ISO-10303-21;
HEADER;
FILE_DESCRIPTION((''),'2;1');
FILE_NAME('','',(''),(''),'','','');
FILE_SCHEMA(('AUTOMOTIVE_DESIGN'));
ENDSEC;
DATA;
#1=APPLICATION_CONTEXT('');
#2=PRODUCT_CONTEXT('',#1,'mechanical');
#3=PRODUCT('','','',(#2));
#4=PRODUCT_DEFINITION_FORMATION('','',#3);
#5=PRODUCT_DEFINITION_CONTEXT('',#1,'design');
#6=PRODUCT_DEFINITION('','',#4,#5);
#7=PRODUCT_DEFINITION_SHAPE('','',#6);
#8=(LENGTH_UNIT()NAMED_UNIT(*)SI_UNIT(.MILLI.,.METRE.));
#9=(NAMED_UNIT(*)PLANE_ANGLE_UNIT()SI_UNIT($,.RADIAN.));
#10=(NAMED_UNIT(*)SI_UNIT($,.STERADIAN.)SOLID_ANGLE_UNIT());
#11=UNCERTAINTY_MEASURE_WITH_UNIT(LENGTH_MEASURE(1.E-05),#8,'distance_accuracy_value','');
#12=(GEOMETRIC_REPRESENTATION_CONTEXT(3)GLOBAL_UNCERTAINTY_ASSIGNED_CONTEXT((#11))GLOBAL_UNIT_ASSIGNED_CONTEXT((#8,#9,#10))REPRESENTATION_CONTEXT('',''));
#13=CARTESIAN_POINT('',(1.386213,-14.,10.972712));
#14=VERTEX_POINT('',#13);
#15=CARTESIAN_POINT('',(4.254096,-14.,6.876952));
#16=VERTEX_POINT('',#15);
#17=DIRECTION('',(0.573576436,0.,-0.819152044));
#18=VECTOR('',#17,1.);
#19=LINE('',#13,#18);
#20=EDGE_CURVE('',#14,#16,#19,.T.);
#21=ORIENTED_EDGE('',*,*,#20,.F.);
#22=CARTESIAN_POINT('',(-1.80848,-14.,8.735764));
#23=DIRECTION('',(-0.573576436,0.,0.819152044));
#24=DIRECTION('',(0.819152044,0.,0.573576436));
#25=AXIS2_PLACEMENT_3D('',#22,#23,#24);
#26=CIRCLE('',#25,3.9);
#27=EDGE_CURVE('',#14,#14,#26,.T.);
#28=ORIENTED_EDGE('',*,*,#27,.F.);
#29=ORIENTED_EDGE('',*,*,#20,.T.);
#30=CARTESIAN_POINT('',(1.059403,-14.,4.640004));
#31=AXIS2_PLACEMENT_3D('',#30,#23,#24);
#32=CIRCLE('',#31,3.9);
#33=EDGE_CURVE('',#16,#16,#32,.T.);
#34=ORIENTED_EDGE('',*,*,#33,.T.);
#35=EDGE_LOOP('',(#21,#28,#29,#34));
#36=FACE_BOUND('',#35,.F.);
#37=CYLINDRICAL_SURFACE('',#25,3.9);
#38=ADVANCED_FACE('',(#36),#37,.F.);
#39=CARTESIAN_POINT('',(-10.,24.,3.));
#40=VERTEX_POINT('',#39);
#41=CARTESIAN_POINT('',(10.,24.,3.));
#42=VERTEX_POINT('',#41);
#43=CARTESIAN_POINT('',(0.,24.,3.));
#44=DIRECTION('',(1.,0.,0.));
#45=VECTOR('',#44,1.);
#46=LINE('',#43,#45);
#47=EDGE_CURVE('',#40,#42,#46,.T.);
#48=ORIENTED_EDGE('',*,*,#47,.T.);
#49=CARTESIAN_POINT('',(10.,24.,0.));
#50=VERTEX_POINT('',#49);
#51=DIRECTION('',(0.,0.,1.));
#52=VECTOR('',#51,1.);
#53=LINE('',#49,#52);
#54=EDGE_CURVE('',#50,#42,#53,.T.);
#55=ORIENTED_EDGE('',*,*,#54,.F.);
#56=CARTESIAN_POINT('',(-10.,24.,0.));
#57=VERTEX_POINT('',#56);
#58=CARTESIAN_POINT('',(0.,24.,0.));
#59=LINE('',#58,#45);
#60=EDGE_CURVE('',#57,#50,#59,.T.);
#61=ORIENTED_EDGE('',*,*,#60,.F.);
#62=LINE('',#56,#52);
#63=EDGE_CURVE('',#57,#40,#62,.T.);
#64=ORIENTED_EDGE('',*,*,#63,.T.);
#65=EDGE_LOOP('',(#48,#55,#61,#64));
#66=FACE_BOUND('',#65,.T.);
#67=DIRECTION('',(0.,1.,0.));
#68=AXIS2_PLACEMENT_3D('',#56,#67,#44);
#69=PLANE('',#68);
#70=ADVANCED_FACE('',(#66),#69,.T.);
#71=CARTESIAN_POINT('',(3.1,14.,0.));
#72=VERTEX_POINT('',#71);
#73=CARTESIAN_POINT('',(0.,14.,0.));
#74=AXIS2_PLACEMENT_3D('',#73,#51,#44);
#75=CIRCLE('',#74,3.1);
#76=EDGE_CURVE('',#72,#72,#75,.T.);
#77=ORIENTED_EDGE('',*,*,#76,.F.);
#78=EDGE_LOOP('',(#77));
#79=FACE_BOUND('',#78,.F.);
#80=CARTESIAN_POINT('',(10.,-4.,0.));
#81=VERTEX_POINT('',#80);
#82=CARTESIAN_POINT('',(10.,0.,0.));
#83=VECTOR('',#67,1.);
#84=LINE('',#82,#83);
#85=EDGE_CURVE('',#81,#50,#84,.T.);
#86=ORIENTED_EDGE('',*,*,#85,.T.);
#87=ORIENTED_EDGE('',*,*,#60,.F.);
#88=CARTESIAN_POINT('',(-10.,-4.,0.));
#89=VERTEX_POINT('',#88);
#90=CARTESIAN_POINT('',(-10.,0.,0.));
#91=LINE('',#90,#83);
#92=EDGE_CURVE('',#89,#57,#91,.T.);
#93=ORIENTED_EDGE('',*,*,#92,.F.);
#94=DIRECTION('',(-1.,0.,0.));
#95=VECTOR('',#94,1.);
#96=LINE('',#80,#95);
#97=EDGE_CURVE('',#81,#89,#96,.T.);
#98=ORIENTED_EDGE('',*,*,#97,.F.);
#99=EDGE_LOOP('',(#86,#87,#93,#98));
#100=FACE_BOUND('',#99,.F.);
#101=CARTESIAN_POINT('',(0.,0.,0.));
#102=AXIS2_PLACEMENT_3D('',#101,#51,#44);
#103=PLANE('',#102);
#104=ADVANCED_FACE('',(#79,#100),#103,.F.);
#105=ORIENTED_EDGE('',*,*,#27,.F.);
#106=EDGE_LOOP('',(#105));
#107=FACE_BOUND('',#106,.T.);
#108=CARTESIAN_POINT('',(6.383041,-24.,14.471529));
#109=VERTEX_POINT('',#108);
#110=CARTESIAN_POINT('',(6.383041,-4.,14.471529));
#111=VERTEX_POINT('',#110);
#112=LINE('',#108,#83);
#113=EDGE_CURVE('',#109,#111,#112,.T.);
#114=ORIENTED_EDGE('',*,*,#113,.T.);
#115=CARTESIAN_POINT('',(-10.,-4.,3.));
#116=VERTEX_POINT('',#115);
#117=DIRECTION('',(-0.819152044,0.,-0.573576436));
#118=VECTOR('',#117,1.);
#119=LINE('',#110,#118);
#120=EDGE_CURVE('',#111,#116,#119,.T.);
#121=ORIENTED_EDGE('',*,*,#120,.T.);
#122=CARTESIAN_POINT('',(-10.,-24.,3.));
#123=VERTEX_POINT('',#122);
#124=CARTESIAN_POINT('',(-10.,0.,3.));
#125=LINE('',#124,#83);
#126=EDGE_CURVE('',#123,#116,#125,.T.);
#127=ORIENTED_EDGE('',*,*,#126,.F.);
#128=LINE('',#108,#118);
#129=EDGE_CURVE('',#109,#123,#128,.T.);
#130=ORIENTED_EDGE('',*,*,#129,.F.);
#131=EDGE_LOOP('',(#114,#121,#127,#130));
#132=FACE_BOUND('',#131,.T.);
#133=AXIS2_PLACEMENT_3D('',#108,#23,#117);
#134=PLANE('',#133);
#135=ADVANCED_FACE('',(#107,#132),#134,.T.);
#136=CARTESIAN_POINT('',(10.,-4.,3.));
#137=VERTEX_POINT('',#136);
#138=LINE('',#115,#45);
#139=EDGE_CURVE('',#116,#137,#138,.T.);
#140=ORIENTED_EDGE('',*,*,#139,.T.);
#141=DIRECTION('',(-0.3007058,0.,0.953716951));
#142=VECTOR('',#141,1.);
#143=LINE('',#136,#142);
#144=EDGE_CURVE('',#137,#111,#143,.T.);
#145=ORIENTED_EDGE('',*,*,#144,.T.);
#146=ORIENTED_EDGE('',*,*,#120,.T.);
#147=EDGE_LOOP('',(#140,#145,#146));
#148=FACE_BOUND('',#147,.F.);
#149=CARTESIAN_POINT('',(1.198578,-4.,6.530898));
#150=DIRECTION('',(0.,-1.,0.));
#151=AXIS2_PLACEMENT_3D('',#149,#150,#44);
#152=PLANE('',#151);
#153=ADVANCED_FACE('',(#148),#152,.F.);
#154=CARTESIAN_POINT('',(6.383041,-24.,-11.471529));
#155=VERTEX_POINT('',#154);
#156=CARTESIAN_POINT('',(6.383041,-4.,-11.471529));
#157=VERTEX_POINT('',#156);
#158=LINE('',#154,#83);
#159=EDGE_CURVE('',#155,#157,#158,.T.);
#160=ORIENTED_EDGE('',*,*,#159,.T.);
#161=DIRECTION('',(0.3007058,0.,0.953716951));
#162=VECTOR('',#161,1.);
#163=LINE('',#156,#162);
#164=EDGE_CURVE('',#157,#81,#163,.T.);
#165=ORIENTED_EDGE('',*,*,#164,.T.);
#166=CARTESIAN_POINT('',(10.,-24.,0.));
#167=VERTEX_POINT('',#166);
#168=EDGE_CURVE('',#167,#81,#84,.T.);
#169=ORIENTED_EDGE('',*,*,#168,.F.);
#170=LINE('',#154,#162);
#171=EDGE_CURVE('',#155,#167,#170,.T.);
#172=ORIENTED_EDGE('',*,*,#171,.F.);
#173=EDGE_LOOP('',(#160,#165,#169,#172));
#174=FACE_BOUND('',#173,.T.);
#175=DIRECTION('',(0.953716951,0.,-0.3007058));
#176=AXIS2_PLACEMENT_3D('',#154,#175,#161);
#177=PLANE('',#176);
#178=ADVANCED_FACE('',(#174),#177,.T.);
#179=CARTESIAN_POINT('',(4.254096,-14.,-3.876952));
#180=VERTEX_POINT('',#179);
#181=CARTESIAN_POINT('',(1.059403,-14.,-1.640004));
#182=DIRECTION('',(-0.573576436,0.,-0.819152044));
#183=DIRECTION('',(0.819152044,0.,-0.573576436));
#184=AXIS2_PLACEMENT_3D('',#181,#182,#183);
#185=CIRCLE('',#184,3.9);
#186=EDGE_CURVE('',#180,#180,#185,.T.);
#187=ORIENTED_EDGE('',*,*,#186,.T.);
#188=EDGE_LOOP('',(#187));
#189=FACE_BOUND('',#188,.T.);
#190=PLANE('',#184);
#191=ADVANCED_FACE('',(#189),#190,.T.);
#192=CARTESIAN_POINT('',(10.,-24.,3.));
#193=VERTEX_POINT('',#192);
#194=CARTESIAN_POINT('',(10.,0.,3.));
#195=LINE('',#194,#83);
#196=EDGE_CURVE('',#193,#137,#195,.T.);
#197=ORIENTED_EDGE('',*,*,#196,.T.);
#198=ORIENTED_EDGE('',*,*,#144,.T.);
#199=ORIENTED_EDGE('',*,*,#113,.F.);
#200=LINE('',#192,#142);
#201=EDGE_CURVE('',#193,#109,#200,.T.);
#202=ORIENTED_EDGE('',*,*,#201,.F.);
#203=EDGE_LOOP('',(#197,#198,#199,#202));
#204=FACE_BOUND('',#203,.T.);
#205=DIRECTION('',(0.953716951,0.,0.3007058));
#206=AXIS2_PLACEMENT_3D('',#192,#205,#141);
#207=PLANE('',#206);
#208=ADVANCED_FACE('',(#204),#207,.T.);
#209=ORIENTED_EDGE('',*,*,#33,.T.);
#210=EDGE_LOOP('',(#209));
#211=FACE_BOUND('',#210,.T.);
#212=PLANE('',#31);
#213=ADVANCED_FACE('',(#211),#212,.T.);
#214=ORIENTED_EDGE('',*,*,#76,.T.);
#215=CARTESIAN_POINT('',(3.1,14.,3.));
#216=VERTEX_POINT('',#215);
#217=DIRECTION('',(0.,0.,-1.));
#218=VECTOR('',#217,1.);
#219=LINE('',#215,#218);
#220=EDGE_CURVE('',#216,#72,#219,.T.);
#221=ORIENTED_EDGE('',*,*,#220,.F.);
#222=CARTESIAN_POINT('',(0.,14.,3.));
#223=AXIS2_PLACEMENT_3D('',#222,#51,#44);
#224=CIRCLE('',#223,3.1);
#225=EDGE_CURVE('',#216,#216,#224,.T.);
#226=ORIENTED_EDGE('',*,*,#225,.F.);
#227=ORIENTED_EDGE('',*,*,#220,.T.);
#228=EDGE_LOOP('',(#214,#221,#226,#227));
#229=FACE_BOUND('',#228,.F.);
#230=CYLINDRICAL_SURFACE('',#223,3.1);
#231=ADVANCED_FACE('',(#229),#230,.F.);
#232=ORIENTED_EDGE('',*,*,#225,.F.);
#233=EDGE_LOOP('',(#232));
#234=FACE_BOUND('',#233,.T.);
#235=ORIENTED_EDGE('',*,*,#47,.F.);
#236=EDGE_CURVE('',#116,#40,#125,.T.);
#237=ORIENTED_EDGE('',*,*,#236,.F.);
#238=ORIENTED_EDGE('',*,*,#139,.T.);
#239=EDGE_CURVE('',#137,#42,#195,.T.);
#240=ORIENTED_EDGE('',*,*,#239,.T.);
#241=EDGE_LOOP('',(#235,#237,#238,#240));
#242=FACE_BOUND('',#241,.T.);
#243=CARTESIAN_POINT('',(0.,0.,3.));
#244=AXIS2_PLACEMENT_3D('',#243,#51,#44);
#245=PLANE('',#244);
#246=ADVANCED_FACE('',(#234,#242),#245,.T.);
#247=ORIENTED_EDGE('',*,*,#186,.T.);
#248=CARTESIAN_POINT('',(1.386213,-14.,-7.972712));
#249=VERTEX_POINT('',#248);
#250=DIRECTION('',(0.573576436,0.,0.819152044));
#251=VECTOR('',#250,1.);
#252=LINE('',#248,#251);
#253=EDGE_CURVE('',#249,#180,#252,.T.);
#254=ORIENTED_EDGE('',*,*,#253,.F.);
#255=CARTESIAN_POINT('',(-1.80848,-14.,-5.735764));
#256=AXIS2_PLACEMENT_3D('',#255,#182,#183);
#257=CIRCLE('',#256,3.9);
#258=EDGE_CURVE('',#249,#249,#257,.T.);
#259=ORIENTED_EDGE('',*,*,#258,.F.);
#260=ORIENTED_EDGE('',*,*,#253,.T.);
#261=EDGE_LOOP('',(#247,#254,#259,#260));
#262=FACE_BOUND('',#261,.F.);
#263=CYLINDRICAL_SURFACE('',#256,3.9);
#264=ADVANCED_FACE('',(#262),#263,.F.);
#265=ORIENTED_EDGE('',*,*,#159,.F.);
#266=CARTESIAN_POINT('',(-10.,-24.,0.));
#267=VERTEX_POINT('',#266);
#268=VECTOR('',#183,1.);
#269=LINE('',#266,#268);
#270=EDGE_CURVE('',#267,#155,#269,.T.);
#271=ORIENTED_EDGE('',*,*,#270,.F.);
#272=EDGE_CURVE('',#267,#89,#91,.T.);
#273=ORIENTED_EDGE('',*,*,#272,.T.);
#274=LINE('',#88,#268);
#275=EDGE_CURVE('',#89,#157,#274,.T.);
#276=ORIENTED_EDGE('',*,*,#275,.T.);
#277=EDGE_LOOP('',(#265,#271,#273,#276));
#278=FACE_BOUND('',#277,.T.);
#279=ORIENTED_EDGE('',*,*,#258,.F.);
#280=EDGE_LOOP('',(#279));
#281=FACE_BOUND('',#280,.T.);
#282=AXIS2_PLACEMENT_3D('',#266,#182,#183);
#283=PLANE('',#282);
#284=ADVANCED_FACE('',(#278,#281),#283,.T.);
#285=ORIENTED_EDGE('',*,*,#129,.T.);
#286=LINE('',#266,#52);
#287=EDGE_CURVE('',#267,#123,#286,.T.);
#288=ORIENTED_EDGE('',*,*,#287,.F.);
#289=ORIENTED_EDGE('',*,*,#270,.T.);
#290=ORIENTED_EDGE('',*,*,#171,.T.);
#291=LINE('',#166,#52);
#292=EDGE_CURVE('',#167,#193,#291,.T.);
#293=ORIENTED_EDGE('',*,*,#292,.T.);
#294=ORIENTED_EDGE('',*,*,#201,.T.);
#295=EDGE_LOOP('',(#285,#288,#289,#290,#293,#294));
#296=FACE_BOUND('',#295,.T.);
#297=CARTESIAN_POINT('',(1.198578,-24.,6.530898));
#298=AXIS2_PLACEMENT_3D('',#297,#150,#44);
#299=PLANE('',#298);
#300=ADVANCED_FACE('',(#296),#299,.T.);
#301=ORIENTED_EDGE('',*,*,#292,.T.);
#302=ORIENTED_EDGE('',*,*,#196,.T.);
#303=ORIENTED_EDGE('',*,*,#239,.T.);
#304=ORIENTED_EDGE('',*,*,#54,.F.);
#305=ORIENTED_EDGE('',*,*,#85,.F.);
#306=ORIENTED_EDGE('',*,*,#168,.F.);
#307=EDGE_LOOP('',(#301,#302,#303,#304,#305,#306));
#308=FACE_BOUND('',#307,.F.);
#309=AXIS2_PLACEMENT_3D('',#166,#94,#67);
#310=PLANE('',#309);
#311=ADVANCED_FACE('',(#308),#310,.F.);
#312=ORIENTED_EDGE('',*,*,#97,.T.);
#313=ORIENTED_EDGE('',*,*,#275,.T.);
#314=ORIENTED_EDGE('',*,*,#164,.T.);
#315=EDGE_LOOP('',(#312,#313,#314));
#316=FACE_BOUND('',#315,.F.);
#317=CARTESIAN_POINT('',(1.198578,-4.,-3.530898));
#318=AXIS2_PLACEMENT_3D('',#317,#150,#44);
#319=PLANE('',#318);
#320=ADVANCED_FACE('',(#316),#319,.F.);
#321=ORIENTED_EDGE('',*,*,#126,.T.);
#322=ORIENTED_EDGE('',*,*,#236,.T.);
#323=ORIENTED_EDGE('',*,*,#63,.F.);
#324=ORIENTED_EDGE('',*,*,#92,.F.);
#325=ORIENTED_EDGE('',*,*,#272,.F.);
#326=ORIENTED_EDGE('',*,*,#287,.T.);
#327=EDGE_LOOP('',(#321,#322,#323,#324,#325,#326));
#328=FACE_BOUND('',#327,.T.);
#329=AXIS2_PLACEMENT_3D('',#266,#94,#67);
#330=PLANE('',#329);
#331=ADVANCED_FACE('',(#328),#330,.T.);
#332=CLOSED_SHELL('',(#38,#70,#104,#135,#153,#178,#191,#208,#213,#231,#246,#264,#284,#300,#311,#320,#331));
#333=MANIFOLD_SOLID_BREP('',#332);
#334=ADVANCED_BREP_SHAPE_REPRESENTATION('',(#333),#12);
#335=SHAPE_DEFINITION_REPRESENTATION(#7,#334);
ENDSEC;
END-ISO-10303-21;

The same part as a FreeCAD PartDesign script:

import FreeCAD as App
import Part
import Sketcher
Q = App.Units.Quantity


def add_polygon(sketch, points):
    """Adds a closed chain of lines whose ends are joined by coincident constraints."""
    first, n = sketch.GeometryCount, len(points)
    for a, b in zip(points, points[1:] + points[:1]):
        sketch.addGeometry(Part.LineSegment(App.Vector(*a, 0), App.Vector(*b, 0)), False)
    for i in range(n):
        sketch.addConstraint(Sketcher.Constraint("Coincident", first + i, 2, first + (i + 1) % n, 1))

doc = App.newDocument("Part")
body = doc.addObject("PartDesign::Body", "Body")

# Sketch on XY plane
sketch1 = body.newObject("Sketcher::SketchObject", "Sketch")
sketch1.AttachmentSupport = (doc.getObject("XY_Plane"), [""])
sketch1.MapMode = "FlatFace"
add_polygon(sketch1, [(-10, 24), (-10, -24), (10, -24), (10, 24)])  # lines 0-3
sketch1.addConstraint(Sketcher.Constraint("Vertical", 0))
sketch1.addConstraint(Sketcher.Constraint("Horizontal", 1))
sketch1.addConstraint(Sketcher.Constraint("Vertical", 2))
sketch1.addConstraint(Sketcher.Constraint("Horizontal", 3))
sketch1.addConstraint(Sketcher.Constraint("Symmetric", 0, 2, 2, 2, -1, 1))
sketch1.addConstraint(Sketcher.Constraint("DistanceX", 1, 1, 1, 2, Q("20 mm")))
sketch1.addConstraint(Sketcher.Constraint("DistanceY", 0, 2, 0, 1, Q("48 mm")))
pad1 = body.newObject("PartDesign::Pad", "Pad")
pad1.Profile = sketch1
pad1.Length = 3

# Sketch on XY plane
sketch2 = body.newObject("Sketcher::SketchObject", "Sketch001")
sketch2.AttachmentSupport = (doc.getObject("XY_Plane"), [""])
sketch2.MapMode = "FlatFace"
sketch2.AttachmentOffset = App.Placement(App.Vector(0, 0, 3), App.Rotation())
sketch2.addGeometry(Part.Circle(App.Vector(0, 14, 0), App.Vector(0, 0, 1), 3.1), False)
sketch2.addConstraint(Sketcher.Constraint("PointOnObject", 0, 3, -2))
sketch2.addConstraint(Sketcher.Constraint("Diameter", 0, Q("6.2 mm")))
sketch2.addConstraint(Sketcher.Constraint("DistanceY", -1, 1, 0, 3, Q("14 mm")))
pocket1 = body.newObject("PartDesign::Pocket", "Pocket")
pocket1.Profile = sketch2
pocket1.Length = 25

# Sketch on XZ plane
sketch3 = body.newObject("Sketcher::SketchObject", "Sketch002")
sketch3.AttachmentSupport = (doc.getObject("XZ_Plane"), [""])
sketch3.MapMode = "FlatFace"
sketch3.AttachmentOffset = App.Placement(App.Vector(0, 0, 24), App.Rotation())
add_polygon(sketch3, [(6, 14), (-10, 3), (10, 3)])  # lines 0-2
add_polygon(sketch3, [(10, 0), (-10, 0), (6, -11)])  # lines 3-5
sketch3.addConstraint(Sketcher.Constraint("Horizontal", 1))
sketch3.addConstraint(Sketcher.Constraint("Horizontal", 3))
sketch3.addConstraint(Sketcher.Constraint("Symmetric", 3, 2, 5, 2, -1, 1))
sketch3.addConstraint(Sketcher.Constraint("Vertical", 0, 2, 3, 2))
sketch3.addConstraint(Sketcher.Constraint("Vertical", 2, 2, 4, 2))
sketch3.addConstraint(Sketcher.Constraint("Vertical", 1, 2, 5, 2))
sketch3.addConstraint(Sketcher.Constraint("Equal", 0, 4))
sketch3.addConstraint(Sketcher.Constraint("DistanceX", 1, 1, 1, 2, Q("20 mm")))
sketch3.addConstraint(Sketcher.Constraint("Angle", 0, Q("-145 deg")))
sketch3.addConstraint(Sketcher.Constraint("Distance", 0, Q("20 mm")))
sketch3.addConstraint(Sketcher.Constraint("DistanceY", -1, 1, 0, 2, Q("3 mm")))
pad2 = body.newObject("PartDesign::Pad", "Pad001")
pad2.Profile = sketch3
pad2.Length = 20
pad2.Reversed = True

# Sketch on an angled plane
sketch4 = body.newObject("Sketcher::SketchObject", "Sketch003")
sketch4.Placement = App.Placement(App.Vector(-4.699438, 0, 6.711493), App.Rotation(App.Vector(0.819152044, 0, 0.573576436), App.Vector(0, 0.999999999, 0), App.Vector(-0.573576436, 0, 0.819152044), "ZXY"))
sketch4.addGeometry(Part.Circle(App.Vector(3.5, -14, 0), App.Vector(0, 0, 1), 3.9), False)
sketch4.addConstraint(Sketcher.Constraint("Diameter", 0, Q("7.8 mm")))
sketch4.addConstraint(Sketcher.Constraint("DistanceY", 0, 3, -1, 1, Q("14 mm")))
sketch4.addConstraint(Sketcher.Constraint("DistanceX", -1, 1, 0, 3, Q("3.529209 mm")))
pocket2 = body.newObject("PartDesign::Pocket", "Pocket001")
pocket2.Profile = sketch4
pocket2.Length = 5

# Sketch on an angled plane
sketch5 = body.newObject("Sketcher::SketchObject", "Sketch004")
sketch5.Placement = App.Placement(App.Vector(-3.289899, 0, -4.698463), App.Rotation(App.Vector(0.819152044, 0, -0.573576436), App.Vector(0, -0.999999999, 0), App.Vector(-0.573576436, 0, -0.819152044), "ZXY"))
sketch5.addGeometry(Part.Circle(App.Vector(1.8, 14, 0), App.Vector(0, 0, 1), 3.9), False)
sketch5.addConstraint(Sketcher.Constraint("Diameter", 0, Q("7.8 mm")))
sketch5.addConstraint(Sketcher.Constraint("DistanceY", -1, 1, 0, 3, Q("14 mm")))
sketch5.addConstraint(Sketcher.Constraint("DistanceX", -1, 1, 0, 3, Q("1.80848 mm")))
pocket3 = body.newObject("PartDesign::Pocket", "Pocket002")
pocket3.Profile = sketch5
pocket3.Length = 5

doc.recompute()
